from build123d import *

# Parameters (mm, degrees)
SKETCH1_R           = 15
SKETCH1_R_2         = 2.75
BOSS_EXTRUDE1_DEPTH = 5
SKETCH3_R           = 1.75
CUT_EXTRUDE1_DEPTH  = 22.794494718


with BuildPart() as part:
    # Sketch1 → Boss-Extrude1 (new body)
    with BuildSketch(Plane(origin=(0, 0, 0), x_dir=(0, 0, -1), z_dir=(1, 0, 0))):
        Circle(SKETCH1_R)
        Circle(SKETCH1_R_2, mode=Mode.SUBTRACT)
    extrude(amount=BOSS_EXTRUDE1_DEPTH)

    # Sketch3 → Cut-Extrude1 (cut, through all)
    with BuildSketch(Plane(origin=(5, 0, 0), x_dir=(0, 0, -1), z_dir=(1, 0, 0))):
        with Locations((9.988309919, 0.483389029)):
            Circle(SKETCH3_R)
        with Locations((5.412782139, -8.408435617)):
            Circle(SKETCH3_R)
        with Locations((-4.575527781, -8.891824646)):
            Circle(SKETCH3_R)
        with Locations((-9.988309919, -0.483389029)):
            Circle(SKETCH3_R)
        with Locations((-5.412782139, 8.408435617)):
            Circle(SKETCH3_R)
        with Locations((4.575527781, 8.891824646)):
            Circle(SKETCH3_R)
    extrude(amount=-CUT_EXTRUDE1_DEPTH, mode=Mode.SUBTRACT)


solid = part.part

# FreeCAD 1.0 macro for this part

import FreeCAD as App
import Part
import Sketcher

doc = App.newDocument("Part")
params = doc.addObject("Spreadsheet::Sheet", "Params")
for row, (alias, value) in enumerate([
    ("sketch1_diameter", "30 mm"),
    ("sketch1_diameter2", "5.5 mm"),
    ("pad1_length", "5 mm"),
    ("sketch2_diameter", "3.5 mm"),
], start=1):
    params.set(f"A{row}", alias)
    params.set(f"B{row}", "=" + value)
    params.setAlias(f"B{row}", alias)

body = doc.addObject("PartDesign::Body", "Body")

sketch1 = body.newObject("Sketcher::SketchObject", "Sketch")
sketch1.AttachmentSupport = (doc.getObject("YZ_Plane"), [""])
sketch1.MapMode = "FlatFace"
sketch1.addGeometry([
    Part.Circle(App.Vector(0, 0, 0), App.Vector(0, 0, 1), 15),
    Part.Circle(App.Vector(0, 0, 0), App.Vector(0, 0, 1), 2.75),
], False)
sketch1.addConstraint([
    Sketcher.Constraint("Coincident", 0, 3, -1, 1),
    Sketcher.Constraint("Coincident", 1, 3, -1, 1),
    Sketcher.Constraint("Diameter", 0, 30.0),
    Sketcher.Constraint("Diameter", 1, 5.5),
])
sketch1.setExpression("Constraints[2]", "Params.sketch1_diameter")
sketch1.setExpression("Constraints[3]", "Params.sketch1_diameter2")
pad1 = body.newObject("PartDesign::Pad", "Pad")
pad1.Profile = sketch1
pad1.setExpression("Length", "Params.pad1_length")

sketch2 = body.newObject("Sketcher::SketchObject", "Sketch001")
sketch2.AttachmentSupport = (doc.getObject("YZ_Plane"), [""])
sketch2.MapMode = "FlatFace"
sketch2.AttachmentOffset = App.Placement(App.Vector(0, 0, 5), App.Rotation())
sketch2.addGeometry([
    Part.Circle(App.Vector(0.483389, -9.98831, 0), App.Vector(0, 0, 1), 1.75),
    Part.Circle(App.Vector(-8.408436, -5.412782, 0), App.Vector(0, 0, 1), 1.75),
    Part.Circle(App.Vector(-8.891825, 4.575528, 0), App.Vector(0, 0, 1), 1.75),
    Part.Circle(App.Vector(-0.483389, 9.98831, 0), App.Vector(0, 0, 1), 1.75),
    Part.Circle(App.Vector(8.408436, 5.412782, 0), App.Vector(0, 0, 1), 1.75),
    Part.Circle(App.Vector(8.891825, -4.575528, 0), App.Vector(0, 0, 1), 1.75),
], False)
sketch2.addConstraint([
    Sketcher.Constraint("Equal", 0, 1),
    Sketcher.Constraint("Equal", 1, 2),
    Sketcher.Constraint("Equal", 2, 3),
    Sketcher.Constraint("Equal", 3, 4),
    Sketcher.Constraint("Equal", 4, 5),
    Sketcher.Constraint("Symmetric", 0, 3, 3, 3, -1, 1),
    Sketcher.Constraint("Symmetric", 1, 3, 4, 3, -1, 1),
    Sketcher.Constraint("Symmetric", 2, 3, 5, 3, -1, 1),
    Sketcher.Constraint("Diameter", 0, 3.5),
    Sketcher.Constraint("DistanceX", -1, 1, 0, 3, 0.483389),
    Sketcher.Constraint("DistanceY", 0, 3, -1, 1, 9.98831),
    Sketcher.Constraint("DistanceX", 2, 3, 1, 3, 0.483389),
    Sketcher.Constraint("DistanceY", 1, 3, 2, 3, 9.98831),
    Sketcher.Constraint("DistanceX", 2, 3, 4, 3, 17.30026),
    Sketcher.Constraint("DistanceY", 1, 3, -1, 1, 5.412782),
])
sketch2.setExpression("Constraints[8]", "Params.sketch2_diameter")
pocket1 = body.newObject("PartDesign::Pocket", "Pocket")
pocket1.Profile = sketch2
pocket1.Type = "ThroughAll"

doc.recompute()
